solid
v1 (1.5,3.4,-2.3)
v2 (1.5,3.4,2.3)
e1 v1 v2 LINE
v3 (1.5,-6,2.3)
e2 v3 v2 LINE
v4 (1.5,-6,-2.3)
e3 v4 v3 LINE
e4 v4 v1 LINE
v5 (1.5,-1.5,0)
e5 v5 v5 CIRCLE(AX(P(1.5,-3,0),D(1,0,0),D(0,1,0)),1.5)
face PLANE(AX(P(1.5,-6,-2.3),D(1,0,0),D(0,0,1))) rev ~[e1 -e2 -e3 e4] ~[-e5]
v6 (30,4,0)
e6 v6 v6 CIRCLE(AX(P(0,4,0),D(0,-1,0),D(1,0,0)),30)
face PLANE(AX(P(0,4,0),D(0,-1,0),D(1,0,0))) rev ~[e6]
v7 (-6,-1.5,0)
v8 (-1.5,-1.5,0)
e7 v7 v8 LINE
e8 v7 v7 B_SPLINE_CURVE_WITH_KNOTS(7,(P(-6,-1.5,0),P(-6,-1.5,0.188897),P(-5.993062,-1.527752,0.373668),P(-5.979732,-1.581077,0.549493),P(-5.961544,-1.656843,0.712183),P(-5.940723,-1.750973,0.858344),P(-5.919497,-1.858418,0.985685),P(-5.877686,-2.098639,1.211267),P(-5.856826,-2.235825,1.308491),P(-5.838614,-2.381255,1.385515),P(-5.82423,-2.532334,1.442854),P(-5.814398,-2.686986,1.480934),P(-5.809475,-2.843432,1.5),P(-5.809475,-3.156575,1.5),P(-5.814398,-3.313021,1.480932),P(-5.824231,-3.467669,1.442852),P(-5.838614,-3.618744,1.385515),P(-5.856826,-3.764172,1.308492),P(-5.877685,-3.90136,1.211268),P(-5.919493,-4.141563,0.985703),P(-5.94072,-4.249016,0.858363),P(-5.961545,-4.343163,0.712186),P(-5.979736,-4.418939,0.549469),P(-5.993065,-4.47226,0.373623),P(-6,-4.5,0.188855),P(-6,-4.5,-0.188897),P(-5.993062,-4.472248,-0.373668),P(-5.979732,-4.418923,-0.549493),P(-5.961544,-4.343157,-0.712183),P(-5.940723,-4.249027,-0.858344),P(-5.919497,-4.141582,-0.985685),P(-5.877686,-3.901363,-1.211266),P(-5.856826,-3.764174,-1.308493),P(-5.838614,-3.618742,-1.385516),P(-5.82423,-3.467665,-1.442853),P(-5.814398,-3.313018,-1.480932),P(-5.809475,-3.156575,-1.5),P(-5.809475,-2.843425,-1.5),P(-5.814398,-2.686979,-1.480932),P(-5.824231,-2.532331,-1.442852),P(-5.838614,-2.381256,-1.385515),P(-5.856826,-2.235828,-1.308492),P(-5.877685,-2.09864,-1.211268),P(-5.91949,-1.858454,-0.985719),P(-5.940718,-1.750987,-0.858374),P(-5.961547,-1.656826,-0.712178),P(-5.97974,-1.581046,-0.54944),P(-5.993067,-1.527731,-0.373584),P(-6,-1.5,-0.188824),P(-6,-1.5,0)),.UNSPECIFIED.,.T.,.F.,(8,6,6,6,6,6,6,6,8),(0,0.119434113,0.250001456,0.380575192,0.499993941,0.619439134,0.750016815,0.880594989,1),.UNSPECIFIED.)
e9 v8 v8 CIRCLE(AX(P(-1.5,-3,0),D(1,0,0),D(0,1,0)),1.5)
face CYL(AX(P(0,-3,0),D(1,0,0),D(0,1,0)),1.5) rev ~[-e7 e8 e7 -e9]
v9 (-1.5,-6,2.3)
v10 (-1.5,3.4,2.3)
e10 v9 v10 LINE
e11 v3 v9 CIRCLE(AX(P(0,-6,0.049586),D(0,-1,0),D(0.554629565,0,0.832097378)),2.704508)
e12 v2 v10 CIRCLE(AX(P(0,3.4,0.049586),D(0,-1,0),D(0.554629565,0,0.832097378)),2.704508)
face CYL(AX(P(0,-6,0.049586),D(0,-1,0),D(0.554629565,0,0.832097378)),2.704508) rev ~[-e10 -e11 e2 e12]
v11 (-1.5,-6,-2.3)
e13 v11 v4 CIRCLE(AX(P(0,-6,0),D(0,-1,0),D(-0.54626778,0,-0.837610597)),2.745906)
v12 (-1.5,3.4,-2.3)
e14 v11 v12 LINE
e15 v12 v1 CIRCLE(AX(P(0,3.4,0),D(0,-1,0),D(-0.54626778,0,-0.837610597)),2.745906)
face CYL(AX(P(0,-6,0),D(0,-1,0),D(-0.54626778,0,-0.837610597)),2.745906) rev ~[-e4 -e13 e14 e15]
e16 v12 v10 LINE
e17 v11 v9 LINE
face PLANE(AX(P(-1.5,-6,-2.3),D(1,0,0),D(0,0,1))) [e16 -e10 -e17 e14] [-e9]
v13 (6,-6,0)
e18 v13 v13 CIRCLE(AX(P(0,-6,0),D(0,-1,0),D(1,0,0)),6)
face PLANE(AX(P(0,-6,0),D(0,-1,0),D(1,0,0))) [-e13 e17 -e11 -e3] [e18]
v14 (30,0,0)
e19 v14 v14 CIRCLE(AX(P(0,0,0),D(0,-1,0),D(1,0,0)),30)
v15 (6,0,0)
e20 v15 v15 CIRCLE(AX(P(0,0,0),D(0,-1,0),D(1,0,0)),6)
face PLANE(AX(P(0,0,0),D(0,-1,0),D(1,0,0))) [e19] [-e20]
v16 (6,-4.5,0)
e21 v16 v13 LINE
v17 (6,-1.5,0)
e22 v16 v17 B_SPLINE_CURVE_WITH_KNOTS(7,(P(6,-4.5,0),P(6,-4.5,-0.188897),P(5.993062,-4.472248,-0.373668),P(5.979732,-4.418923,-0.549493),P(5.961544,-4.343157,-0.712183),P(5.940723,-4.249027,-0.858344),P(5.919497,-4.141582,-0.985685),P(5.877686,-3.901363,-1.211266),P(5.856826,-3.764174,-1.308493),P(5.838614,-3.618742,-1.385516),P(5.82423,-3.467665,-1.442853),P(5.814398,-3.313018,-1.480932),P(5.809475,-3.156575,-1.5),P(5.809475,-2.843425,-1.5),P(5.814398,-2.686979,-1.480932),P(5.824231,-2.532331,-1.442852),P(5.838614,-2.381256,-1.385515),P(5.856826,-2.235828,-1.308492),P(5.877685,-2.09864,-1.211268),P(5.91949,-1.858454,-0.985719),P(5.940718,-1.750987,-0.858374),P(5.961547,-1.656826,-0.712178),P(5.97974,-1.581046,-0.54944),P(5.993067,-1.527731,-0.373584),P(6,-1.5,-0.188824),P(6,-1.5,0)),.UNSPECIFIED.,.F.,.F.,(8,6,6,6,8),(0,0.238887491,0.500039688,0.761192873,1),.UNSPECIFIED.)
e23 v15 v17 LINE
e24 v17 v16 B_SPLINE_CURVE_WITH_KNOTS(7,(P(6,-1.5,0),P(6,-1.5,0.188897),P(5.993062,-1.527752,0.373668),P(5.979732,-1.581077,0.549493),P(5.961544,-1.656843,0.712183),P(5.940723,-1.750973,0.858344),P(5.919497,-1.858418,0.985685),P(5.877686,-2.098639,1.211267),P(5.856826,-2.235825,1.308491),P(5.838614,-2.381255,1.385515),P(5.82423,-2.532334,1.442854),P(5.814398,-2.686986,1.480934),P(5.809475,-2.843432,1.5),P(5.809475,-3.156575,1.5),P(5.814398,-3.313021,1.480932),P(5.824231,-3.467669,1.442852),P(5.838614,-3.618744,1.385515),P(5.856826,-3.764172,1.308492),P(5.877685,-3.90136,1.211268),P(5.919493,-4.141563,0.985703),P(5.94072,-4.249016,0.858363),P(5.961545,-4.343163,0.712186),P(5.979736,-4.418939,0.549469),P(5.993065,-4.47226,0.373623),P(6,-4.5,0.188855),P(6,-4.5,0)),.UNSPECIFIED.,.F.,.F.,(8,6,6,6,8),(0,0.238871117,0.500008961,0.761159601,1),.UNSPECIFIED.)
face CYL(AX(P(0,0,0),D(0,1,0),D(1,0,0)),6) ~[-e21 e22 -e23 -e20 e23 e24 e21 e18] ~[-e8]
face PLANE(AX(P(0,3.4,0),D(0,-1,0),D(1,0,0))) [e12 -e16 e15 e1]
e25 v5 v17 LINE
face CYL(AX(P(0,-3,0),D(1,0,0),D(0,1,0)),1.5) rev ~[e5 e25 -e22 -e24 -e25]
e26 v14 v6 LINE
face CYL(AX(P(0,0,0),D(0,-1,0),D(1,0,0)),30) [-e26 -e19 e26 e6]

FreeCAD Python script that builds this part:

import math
import FreeCAD as App
import Part
import Sketcher
from FreeCAD import Vector
Q = App.Units.Quantity

doc = App.newDocument("Part")
body = doc.addObject("PartDesign::Body", "Body")

# Sketch on XZ plane
sketch1 = body.newObject("Sketcher::SketchObject", "Sketch")
sketch1.AttachmentSupport = (doc.getObject("XZ_Plane"), [""])
sketch1.MapMode = "FlatFace"
sketch1.addGeometry(Part.Circle(Vector(0, 0, 0), Vector(0, 0, 1), 30), False)
sketch1.addConstraint([
    Sketcher.Constraint("Coincident", 0, 3, -1, 1),
    Sketcher.Constraint("Diameter", 0, Q("60 mm")),
])
pad1 = body.newObject("PartDesign::Pad", "Pad")
pad1.Profile = sketch1
pad1.Length = 4
pad1.Reversed = True

# Sketch on XZ plane
sketch2 = body.newObject("Sketcher::SketchObject", "Sketch001")
sketch2.AttachmentSupport = (doc.getObject("XZ_Plane"), [""])
sketch2.MapMode = "FlatFace"
sketch2.addGeometry(Part.Circle(Vector(0, 0, 0), Vector(0, 0, 1), 6), False)
sketch2.addConstraint([
    Sketcher.Constraint("Coincident", 0, 3, -1, 1),
    Sketcher.Constraint("Diameter", 0, Q("12 mm")),
])
pad2 = body.newObject("PartDesign::Pad", "Pad001")
pad2.Profile = sketch2
pad2.Length = 6

# Sketch on YZ plane
sketch3 = body.newObject("Sketcher::SketchObject", "Sketch002")
sketch3.AttachmentSupport = (doc.getObject("YZ_Plane"), [""])
sketch3.MapMode = "FlatFace"
sketch3.addGeometry(Part.Circle(Vector(-3, 0, 0), Vector(0, 0, 1), 1.5), False)
sketch3.addConstraint([
    Sketcher.Constraint("PointOnObject", 0, 3, -1),
    Sketcher.Constraint("Diameter", 0, Q("3 mm")),
    Sketcher.Constraint("DistanceX", 0, 3, -1, 1, Q("3 mm")),
])
pocket1 = body.newObject("PartDesign::Pocket", "Pocket")
pocket1.Profile = sketch3
pocket1.Length = 25
pocket1.Midplane = True

# Sketch on XZ plane
sketch4 = body.newObject("Sketcher::SketchObject", "Sketch003")
sketch4.AttachmentSupport = (doc.getObject("XZ_Plane"), [""])
sketch4.MapMode = "FlatFace"
sketch4.AttachmentOffset = App.Placement(Vector(0, 0, 6), App.Rotation())
sketch4.addGeometry([
    Part.LineSegment(Vector(-1.5, 2.3, 0), Vector(-1.5, -2.3, 0)),
    Part.ArcOfCircle(Part.Circle(Vector(0, 0, 0), Vector(0, 0, 1), 2.7), math.radians(-123), math.radians(-57)),
    Part.LineSegment(Vector(1.5, -2.3, 0), Vector(1.5, 2.3, 0)),
    Part.ArcOfCircle(Part.Circle(Vector(0, 0, 0), Vector(0, 0, 1), 2.7), math.radians(56), math.radians(124)),
], False)
sketch4.addConstraint([
    Sketcher.Constraint("Coincident", 0, 2, 1, 1),
    Sketcher.Constraint("Coincident", 1, 2, 2, 1),
    Sketcher.Constraint("Coincident", 2, 2, 3, 1),
    Sketcher.Constraint("Coincident", 3, 2, 0, 1),
    Sketcher.Constraint("Vertical", 0),
    Sketcher.Constraint("Vertical", 2),
    Sketcher.Constraint("Coincident", 1, 3, -1, 1),
    Sketcher.Constraint("Symmetric", 0, 2, 2, 2, -1, 1),
    Sketcher.Constraint("PointOnObject", 3, 3, -2),
    Sketcher.Constraint("DistanceY", 0, 2, 0, 1, Q("4.6 mm")),
    Sketcher.Constraint("DistanceX", 0, 2, 1, 2, Q("3 mm")),
    Sketcher.Constraint("Radius", 3, Q("2.704508 mm")),
])
pocket2 = body.newObject("PartDesign::Pocket", "Pocket001")
pocket2.Profile = sketch4
pocket2.Length = 9.4

doc.recompute()
